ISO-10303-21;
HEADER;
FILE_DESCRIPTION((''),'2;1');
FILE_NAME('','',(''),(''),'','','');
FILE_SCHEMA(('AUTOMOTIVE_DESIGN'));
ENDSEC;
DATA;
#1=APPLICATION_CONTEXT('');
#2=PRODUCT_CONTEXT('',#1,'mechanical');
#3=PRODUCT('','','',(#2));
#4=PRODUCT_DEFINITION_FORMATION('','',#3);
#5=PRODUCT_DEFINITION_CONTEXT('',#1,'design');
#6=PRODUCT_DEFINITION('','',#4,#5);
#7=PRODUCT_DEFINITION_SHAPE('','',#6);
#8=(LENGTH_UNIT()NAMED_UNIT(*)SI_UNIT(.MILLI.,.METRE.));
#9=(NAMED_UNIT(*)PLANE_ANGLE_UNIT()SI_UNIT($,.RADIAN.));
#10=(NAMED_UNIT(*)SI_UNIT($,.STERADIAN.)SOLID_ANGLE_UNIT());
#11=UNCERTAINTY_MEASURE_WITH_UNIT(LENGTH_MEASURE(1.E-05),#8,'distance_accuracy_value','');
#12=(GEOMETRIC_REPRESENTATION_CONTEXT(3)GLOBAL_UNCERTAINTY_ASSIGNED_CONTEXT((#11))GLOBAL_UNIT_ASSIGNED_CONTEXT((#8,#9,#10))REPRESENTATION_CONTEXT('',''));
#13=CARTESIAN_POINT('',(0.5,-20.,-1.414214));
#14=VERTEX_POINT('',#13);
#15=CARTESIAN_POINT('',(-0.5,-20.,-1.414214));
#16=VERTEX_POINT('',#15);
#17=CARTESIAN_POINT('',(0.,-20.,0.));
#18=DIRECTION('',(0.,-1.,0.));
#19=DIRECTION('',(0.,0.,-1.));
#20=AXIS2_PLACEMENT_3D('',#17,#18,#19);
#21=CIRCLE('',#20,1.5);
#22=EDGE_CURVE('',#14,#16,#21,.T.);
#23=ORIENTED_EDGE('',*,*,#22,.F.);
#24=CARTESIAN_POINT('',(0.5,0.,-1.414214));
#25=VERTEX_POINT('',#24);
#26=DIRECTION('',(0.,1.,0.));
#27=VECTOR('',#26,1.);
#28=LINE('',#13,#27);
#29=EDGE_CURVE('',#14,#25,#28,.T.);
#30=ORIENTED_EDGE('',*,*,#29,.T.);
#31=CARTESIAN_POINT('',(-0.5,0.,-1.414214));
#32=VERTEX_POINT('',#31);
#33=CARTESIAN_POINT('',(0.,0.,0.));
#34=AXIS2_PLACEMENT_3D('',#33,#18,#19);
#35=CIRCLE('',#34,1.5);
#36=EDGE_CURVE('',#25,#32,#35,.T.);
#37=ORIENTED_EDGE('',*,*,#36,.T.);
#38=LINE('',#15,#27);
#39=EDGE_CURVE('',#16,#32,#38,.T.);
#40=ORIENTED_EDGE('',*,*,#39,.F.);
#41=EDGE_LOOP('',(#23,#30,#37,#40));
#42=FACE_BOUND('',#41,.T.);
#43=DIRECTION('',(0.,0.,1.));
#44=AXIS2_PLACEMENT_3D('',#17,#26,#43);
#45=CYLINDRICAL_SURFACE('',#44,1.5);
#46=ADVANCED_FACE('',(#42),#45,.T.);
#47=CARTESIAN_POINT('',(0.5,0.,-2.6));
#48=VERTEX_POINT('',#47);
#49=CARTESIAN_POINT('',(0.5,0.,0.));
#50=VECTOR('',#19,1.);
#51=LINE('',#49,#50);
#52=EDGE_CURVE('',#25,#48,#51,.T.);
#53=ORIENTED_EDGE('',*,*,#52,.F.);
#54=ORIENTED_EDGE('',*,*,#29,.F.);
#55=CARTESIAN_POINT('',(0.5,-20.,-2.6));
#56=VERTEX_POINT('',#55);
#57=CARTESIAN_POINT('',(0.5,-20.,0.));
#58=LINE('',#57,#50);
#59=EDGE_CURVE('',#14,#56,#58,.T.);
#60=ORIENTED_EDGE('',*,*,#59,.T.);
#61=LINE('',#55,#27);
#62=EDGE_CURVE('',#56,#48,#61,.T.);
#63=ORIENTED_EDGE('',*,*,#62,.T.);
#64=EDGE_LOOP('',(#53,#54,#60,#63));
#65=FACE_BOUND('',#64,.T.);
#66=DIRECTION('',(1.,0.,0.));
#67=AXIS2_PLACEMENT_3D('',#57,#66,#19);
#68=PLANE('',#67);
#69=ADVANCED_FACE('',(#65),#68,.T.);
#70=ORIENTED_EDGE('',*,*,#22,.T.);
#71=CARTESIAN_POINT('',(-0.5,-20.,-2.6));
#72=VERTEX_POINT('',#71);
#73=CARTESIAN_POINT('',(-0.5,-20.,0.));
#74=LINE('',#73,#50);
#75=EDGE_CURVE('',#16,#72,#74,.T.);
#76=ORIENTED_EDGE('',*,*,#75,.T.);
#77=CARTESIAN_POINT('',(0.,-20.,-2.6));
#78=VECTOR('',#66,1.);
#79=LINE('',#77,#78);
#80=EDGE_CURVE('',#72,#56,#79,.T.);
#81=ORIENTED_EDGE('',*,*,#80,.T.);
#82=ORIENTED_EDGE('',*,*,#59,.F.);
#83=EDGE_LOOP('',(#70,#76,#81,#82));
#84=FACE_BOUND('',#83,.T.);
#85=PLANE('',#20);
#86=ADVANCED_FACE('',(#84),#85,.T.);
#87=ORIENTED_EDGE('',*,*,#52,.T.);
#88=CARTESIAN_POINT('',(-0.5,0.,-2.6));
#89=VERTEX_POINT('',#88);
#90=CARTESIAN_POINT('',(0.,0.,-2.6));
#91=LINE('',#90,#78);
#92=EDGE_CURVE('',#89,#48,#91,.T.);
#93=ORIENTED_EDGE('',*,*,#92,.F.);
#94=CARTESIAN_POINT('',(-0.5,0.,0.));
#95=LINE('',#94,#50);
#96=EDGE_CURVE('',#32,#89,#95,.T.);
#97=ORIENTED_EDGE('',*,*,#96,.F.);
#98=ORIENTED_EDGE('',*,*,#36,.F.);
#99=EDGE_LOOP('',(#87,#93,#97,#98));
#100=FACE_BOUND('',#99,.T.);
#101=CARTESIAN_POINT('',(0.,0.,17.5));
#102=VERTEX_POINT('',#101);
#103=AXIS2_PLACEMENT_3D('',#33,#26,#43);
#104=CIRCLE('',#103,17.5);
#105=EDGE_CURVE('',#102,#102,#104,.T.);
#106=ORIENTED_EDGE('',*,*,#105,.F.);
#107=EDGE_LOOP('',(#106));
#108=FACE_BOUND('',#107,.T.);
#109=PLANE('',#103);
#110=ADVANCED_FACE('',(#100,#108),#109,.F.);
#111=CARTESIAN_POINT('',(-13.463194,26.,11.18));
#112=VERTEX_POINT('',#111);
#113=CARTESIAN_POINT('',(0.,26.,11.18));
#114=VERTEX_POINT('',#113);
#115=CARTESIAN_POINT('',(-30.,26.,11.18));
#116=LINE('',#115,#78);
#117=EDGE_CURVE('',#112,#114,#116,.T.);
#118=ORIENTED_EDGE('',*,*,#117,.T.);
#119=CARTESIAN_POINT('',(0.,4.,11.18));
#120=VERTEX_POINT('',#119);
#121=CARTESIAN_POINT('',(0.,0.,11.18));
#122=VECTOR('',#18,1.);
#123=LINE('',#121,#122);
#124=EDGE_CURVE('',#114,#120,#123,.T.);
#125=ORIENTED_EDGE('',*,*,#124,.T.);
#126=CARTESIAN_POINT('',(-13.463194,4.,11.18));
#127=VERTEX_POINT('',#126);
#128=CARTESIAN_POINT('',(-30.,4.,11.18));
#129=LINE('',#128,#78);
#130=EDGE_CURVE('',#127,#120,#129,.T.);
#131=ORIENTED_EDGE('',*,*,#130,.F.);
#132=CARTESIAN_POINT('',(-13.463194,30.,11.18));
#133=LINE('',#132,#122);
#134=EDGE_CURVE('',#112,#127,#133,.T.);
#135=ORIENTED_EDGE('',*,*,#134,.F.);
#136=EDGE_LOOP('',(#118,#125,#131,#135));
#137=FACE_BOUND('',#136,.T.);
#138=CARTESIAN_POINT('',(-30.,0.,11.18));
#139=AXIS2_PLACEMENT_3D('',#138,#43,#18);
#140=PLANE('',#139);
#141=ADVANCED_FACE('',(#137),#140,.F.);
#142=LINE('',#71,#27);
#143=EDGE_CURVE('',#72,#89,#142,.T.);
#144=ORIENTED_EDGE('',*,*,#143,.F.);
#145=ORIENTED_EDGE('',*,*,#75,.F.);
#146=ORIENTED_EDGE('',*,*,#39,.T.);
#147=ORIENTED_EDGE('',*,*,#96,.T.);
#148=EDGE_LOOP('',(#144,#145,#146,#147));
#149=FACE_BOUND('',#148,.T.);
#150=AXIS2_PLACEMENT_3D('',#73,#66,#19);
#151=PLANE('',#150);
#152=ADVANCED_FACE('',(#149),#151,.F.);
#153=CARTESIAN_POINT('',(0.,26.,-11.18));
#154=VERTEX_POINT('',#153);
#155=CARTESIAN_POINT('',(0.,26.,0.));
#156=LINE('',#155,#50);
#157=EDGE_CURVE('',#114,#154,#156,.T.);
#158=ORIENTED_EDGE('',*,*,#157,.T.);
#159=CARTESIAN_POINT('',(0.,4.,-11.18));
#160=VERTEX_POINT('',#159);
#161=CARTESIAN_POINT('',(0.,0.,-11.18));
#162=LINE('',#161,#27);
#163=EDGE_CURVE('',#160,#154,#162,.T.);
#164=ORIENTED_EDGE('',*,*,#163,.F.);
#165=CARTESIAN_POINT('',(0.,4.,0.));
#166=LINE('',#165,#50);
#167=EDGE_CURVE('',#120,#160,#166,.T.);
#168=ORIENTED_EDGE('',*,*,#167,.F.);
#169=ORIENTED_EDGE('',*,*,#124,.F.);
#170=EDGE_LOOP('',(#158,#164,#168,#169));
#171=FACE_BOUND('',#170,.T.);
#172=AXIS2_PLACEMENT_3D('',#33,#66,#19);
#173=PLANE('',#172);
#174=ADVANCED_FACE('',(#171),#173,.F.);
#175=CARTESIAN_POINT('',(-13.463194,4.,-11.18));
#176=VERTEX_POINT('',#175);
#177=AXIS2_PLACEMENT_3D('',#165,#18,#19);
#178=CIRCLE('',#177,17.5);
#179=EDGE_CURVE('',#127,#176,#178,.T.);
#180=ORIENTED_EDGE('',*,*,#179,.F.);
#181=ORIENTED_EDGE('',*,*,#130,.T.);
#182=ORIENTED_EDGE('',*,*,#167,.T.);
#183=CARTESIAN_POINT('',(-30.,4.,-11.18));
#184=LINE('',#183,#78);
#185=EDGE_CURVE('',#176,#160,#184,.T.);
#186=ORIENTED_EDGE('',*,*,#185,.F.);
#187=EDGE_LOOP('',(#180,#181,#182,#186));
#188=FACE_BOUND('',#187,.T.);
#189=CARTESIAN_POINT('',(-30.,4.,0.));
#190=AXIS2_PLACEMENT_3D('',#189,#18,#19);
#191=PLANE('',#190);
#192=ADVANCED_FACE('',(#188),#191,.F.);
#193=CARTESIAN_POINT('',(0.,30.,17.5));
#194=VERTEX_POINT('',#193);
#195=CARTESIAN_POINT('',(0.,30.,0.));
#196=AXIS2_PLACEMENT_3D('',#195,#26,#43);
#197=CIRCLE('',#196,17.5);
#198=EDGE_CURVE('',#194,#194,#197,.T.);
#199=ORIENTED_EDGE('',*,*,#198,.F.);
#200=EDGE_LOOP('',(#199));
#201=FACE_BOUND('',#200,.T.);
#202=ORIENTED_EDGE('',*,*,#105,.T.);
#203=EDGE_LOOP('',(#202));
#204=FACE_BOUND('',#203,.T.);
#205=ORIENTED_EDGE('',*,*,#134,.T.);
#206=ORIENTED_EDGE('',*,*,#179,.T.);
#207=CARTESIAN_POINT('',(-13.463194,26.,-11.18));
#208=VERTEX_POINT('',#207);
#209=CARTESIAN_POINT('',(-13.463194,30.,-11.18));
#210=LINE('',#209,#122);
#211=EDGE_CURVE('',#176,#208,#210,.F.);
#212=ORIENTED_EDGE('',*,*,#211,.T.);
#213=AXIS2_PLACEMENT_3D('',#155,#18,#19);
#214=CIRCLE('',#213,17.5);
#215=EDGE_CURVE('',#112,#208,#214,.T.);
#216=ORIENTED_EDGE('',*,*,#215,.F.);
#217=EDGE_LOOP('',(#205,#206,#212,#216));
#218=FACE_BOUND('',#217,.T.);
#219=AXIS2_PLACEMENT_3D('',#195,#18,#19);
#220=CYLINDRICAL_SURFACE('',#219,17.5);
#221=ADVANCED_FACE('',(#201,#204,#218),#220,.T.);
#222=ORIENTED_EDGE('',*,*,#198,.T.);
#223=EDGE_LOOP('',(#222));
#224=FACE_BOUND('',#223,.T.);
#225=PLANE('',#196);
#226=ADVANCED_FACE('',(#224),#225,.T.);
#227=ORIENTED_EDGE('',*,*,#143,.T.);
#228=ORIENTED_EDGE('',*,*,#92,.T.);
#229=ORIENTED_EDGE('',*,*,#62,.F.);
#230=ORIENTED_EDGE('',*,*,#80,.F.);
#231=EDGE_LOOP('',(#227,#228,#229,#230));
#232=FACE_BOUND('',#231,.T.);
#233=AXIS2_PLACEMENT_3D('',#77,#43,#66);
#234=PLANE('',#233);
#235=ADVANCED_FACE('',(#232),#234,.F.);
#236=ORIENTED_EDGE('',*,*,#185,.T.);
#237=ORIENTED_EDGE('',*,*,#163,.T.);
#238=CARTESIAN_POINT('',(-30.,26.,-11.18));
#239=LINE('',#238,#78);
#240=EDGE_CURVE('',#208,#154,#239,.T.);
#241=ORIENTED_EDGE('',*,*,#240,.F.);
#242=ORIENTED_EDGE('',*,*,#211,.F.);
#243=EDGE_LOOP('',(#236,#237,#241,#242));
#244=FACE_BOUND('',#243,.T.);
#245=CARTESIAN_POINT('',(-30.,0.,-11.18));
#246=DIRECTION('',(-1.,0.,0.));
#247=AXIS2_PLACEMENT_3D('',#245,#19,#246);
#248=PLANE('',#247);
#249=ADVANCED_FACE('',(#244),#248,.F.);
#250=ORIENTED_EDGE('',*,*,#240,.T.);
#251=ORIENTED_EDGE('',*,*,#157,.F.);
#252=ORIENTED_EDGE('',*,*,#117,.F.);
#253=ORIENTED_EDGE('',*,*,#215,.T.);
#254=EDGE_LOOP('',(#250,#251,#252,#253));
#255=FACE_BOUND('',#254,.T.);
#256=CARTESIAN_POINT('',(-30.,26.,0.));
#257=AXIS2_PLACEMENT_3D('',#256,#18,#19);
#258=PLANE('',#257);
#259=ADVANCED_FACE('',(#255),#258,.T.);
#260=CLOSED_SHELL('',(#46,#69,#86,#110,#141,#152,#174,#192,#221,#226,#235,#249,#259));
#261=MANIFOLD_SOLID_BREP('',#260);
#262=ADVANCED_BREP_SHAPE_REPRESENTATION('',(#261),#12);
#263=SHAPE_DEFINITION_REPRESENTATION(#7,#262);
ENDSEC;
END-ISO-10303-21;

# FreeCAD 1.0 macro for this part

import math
import FreeCAD as App
import Part
import Sketcher

doc = App.newDocument("Part")
body = doc.addObject("PartDesign::Body", "Body")

# Sketch on XZ plane
sketch1 = doc.addObject("Sketcher::SketchObject", "Sketch")
body.addObject(sketch1)
sketch1.AttachmentSupport = (doc.XZ_Plane, [""])
sketch1.MapMode = "FlatFace"
sketch1.addGeometry(Part.Circle(App.Vector(0, 0, 0), App.Vector(0, 0, 1), 18), False)
sketch1.addConstraint([
    Sketcher.Constraint("Coincident", 0, 3, -1, 1),
    Sketcher.Constraint("Diameter", 0, 35.0),
])
pad1 = doc.addObject("PartDesign::Pad", "Pad")
body.addObject(pad1)
pad1.Profile = sketch1
pad1.Length = 30
pad1.Reversed = True

# Sketch on YZ plane
sketch2 = doc.addObject("Sketcher::SketchObject", "Sketch001")
body.addObject(sketch2)
sketch2.AttachmentSupport = (doc.YZ_Plane, [""])
sketch2.MapMode = "FlatFace"
sketch2.addGeometry([
    Part.LineSegment(App.Vector(26, 11, 0), App.Vector(4, 11, 0)),
    Part.LineSegment(App.Vector(4, 11, 0), App.Vector(4, -11, 0)),
    Part.LineSegment(App.Vector(4, -11, 0), App.Vector(26, -11, 0)),
    Part.LineSegment(App.Vector(26, -11, 0), App.Vector(26, 11, 0)),
], False)
sketch2.addConstraint([
    Sketcher.Constraint("Coincident", 0, 2, 1, 1),
    Sketcher.Constraint("Coincident", 1, 2, 2, 1),
    Sketcher.Constraint("Coincident", 2, 2, 3, 1),
    Sketcher.Constraint("Coincident", 3, 2, 0, 1),
    Sketcher.Constraint("Horizontal", 0),
    Sketcher.Constraint("Vertical", 1),
    Sketcher.Constraint("Horizontal", 2),
    Sketcher.Constraint("Vertical", 3),
    Sketcher.Constraint("DistanceX", 0, 2, 0, 1, 22.0),
    Sketcher.Constraint("DistanceX", -1, 1, 0, 2, 4.0),
    Sketcher.Constraint("DistanceY", 1, 2, 1, 1, 22.36),
    Sketcher.Constraint("DistanceY", -1, 1, 0, 2, 11.18),
])
pocket1 = doc.addObject("PartDesign::Pocket", "Pocket")
body.addObject(pocket1)
pocket1.Profile = sketch2
pocket1.Length = 30

# Sketch on XZ plane
sketch3 = doc.addObject("Sketcher::SketchObject", "Sketch002")
body.addObject(sketch3)
sketch3.AttachmentSupport = (doc.XZ_Plane, [""])
sketch3.MapMode = "FlatFace"
sketch3.addGeometry([
    Part.ArcOfCircle(Part.Circle(App.Vector(0, 0, 0), App.Vector(0, 0, 1), 1.5), math.radians(-71), math.radians(0)),  # 0
    Part.ArcOfCircle(Part.Circle(App.Vector(0, 0, 0), App.Vector(0, 0, 1), 1.5), math.radians(0), math.radians(251)),  # 1
    Part.LineSegment(App.Vector(-0.5, -1.4, 0), App.Vector(-0.5, -2.6, 0)),  # 2
    Part.LineSegment(App.Vector(-0.5, -2.6, 0), App.Vector(0.5, -2.6, 0)),  # 3
    Part.LineSegment(App.Vector(0.5, -2.6, 0), App.Vector(0.5, -1.4, 0)),  # 4
], False)
sketch3.addConstraint([
    Sketcher.Constraint("Tangent", 0, 2, 1, 1),
    Sketcher.Constraint("Coincident", 1, 2, 2, 1),
    Sketcher.Constraint("Coincident", 2, 2, 3, 1),
    Sketcher.Constraint("Coincident", 3, 2, 4, 1),
    Sketcher.Constraint("Coincident", 4, 2, 0, 1),
    Sketcher.Constraint("Vertical", 2),
    Sketcher.Constraint("Horizontal", 3),
    Sketcher.Constraint("Vertical", 4),
    Sketcher.Constraint("Coincident", 0, 3, -1, 1),
    Sketcher.Constraint("Equal", 0, 1),
    Sketcher.Constraint("PointOnObject", 0, 2, -1),
    Sketcher.Constraint("Horizontal", 1, 2, 4, 2),
    Sketcher.Constraint("Radius", 0, 1.5),
    Sketcher.Constraint("DistanceX", 3, 1, 3, 2, 1.0),
    Sketcher.Constraint("DistanceY", 2, 2, -1, 1, 2.6),
])
pad2 = doc.addObject("PartDesign::Pad", "Pad001")
body.addObject(pad2)
pad2.Profile = sketch3
pad2.Length = 20

doc.recompute()
